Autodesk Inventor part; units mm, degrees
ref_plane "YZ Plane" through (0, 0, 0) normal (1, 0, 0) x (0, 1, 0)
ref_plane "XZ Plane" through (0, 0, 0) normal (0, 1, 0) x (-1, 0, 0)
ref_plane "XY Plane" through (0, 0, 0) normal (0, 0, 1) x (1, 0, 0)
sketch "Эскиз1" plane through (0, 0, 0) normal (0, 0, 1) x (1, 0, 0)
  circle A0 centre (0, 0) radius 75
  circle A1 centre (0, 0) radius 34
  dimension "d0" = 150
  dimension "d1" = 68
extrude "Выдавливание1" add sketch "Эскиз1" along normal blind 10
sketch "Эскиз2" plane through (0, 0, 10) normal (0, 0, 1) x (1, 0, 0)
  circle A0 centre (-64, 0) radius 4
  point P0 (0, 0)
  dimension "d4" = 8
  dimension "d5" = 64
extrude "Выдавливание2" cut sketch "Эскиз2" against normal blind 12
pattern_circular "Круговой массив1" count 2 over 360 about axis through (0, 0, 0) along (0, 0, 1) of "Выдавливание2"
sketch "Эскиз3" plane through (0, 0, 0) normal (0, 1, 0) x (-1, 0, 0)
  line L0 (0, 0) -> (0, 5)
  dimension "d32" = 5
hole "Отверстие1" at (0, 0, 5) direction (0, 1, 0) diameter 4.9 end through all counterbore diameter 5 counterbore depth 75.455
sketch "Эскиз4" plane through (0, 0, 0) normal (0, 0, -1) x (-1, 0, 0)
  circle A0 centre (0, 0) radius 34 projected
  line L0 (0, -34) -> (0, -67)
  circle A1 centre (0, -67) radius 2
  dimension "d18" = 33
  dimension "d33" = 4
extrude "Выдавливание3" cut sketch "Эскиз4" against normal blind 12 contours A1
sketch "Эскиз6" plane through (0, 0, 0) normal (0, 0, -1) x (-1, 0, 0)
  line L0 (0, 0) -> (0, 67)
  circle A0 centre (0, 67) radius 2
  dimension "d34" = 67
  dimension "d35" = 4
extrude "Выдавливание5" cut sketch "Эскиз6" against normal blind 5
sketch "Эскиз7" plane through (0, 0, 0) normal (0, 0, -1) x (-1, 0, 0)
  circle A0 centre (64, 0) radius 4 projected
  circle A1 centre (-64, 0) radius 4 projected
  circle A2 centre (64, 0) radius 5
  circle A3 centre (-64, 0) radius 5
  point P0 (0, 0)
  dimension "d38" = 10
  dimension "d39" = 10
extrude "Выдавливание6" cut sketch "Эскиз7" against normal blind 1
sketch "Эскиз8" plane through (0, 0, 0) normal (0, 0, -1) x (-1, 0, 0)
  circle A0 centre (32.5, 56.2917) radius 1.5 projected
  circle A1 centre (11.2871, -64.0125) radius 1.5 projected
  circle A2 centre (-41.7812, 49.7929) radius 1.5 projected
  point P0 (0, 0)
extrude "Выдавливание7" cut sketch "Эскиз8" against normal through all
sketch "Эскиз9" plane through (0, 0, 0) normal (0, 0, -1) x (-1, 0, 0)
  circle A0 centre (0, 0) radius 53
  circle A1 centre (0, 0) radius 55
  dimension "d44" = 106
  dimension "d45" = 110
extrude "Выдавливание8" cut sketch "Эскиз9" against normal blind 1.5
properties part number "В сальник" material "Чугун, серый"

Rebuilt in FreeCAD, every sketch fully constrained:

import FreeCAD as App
import Part
import Sketcher
Q = App.Units.Quantity

doc = App.newDocument("Part")
body = doc.addObject("PartDesign::Body", "Body")

sketch1 = doc.addObject("Sketcher::SketchObject", "Sketch")
body.addObject(sketch1)
sketch1.AttachmentSupport = (doc.XY_Plane, [""])
sketch1.MapMode = "FlatFace"
sketch1.addGeometry(Part.Circle(App.Vector(0, 0, 0), App.Vector(0, 0, 1), 75), False)
sketch1.addGeometry(Part.Circle(App.Vector(0, 0, 0), App.Vector(0, 0, 1), 34), False)
sketch1.addConstraint(Sketcher.Constraint("Coincident", 0, 3, -1, 1))
sketch1.addConstraint(Sketcher.Constraint("Coincident", 1, 3, -1, 1))
sketch1.addConstraint(Sketcher.Constraint("Diameter", 0, Q("150 mm")))
sketch1.addConstraint(Sketcher.Constraint("Diameter", 1, Q("68 mm")))
pad1 = doc.addObject("PartDesign::Pad", "Pad")
body.addObject(pad1)
pad1.Profile = sketch1
pad1.Length = 10

sketch2 = doc.addObject("Sketcher::SketchObject", "Sketch001")
body.addObject(sketch2)
sketch2.AttachmentSupport = (doc.XY_Plane, [""])
sketch2.MapMode = "FlatFace"
sketch2.AttachmentOffset = App.Placement(App.Vector(0, 0, 10), App.Rotation())
sketch2.addGeometry(Part.Circle(App.Vector(-64, 0, 0), App.Vector(0, 0, 1), 4), False)
sketch2.addConstraint(Sketcher.Constraint("PointOnObject", 0, 3, -1))
sketch2.addConstraint(Sketcher.Constraint("Diameter", 0, Q("8 mm")))
sketch2.addConstraint(Sketcher.Constraint("DistanceX", 0, 3, -1, 1, Q("64 mm")))
pocket1 = doc.addObject("PartDesign::Pocket", "Pocket")
body.addObject(pocket1)
pocket1.Profile = sketch2
pocket1.Length = 12
doc.recompute()

polarpattern = doc.addObject("PartDesign::PolarPattern", "PolarPattern")
body.addObject(polarpattern)
polarpattern.Originals = [pocket1]
polarpattern.Axis = (doc.Z_Axis, [""])
polarpattern.Angle = 360
polarpattern.Occurrences = 2
body.Tip = polarpattern

sketch3 = doc.addObject("Sketcher::SketchObject", "Sketch002")
body.addObject(sketch3)
sketch3.AttachmentSupport = (doc.XZ_Plane, [""])
sketch3.MapMode = "FlatFace"
sketch3.addGeometry(Part.Circle(App.Vector(0, 5, 0), App.Vector(0, 0, 1), 2.5), False)
sketch3.addConstraint(Sketcher.Constraint("PointOnObject", 0, 3, -2))
sketch3.addConstraint(Sketcher.Constraint("Diameter", 0, Q("4.9 mm")))
sketch3.addConstraint(Sketcher.Constraint("DistanceY", -1, 1, 0, 3, Q("5 mm")))
doc.recompute()
hole = doc.addObject("PartDesign::Hole", "Hole")
body.addObject(hole)
hole.Profile = sketch3
hole.ThreadType = "None"
hole.Diameter = 4.9
hole.DepthType = "ThroughAll"
hole.HoleCutType = "Counterbore"
hole.HoleCutDiameter = 5
hole.HoleCutDepth = 75.455

sketch4 = doc.addObject("Sketcher::SketchObject", "Sketch003")
body.addObject(sketch4)
sketch4.AttachmentSupport = (doc.XY_Plane, [""])
sketch4.MapMode = "FlatFace"
sketch4.addGeometry(Part.Circle(App.Vector(0, -67, 0), App.Vector(0, 0, 1), 2), False)
sketch4.addConstraint(Sketcher.Constraint("PointOnObject", 0, 3, -2))
sketch4.addConstraint(Sketcher.Constraint("Diameter", 0, Q("4 mm")))
sketch4.addConstraint(Sketcher.Constraint("DistanceY", 0, 3, -1, 1, Q("67 mm")))
pocket2 = doc.addObject("PartDesign::Pocket", "Pocket001")
body.addObject(pocket2)
pocket2.Profile = sketch4
pocket2.Length = 12
pocket2.Reversed = True

sketch5 = doc.addObject("Sketcher::SketchObject", "Sketch004")
body.addObject(sketch5)
sketch5.AttachmentSupport = (doc.XY_Plane, [""])
sketch5.MapMode = "FlatFace"
sketch5.addGeometry(Part.Circle(App.Vector(0, 67, 0), App.Vector(0, 0, 1), 2), False)
sketch5.addConstraint(Sketcher.Constraint("PointOnObject", 0, 3, -2))
sketch5.addConstraint(Sketcher.Constraint("Diameter", 0, Q("4 mm")))
sketch5.addConstraint(Sketcher.Constraint("DistanceY", -1, 1, 0, 3, Q("67 mm")))
pocket3 = doc.addObject("PartDesign::Pocket", "Pocket002")
body.addObject(pocket3)
pocket3.Profile = sketch5
pocket3.Length = 5
pocket3.Reversed = True

sketch6 = doc.addObject("Sketcher::SketchObject", "Sketch005")
body.addObject(sketch6)
sketch6.AttachmentSupport = (doc.XY_Plane, [""])
sketch6.MapMode = "FlatFace"
sketch6.addGeometry(Part.Circle(App.Vector(-64, 0, 0), App.Vector(0, 0, 1), 5), False)
sketch6.addGeometry(Part.Circle(App.Vector(-64, 0, 0), App.Vector(0, 0, 1), 4), False)
sketch6.addGeometry(Part.Circle(App.Vector(64, 0, 0), App.Vector(0, 0, 1), 5), False)
sketch6.addGeometry(Part.Circle(App.Vector(64, 0, 0), App.Vector(0, 0, 1), 4), False)
sketch6.addConstraint(Sketcher.Constraint("Coincident", 1, 3, 0, 3))
sketch6.addConstraint(Sketcher.Constraint("Coincident", 3, 3, 2, 3))
sketch6.addConstraint(Sketcher.Constraint("Equal", 0, 2))
sketch6.addConstraint(Sketcher.Constraint("Equal", 1, 3))
sketch6.addConstraint(Sketcher.Constraint("Symmetric", 0, 3, 2, 3, -1, 1))
sketch6.addConstraint(Sketcher.Constraint("PointOnObject", 0, 3, -1))
sketch6.addConstraint(Sketcher.Constraint("Diameter", 0, Q("10 mm")))
sketch6.addConstraint(Sketcher.Constraint("Diameter", 1, Q("8 mm")))
sketch6.addConstraint(Sketcher.Constraint("DistanceX", 0, 3, -1, 1, Q("64 mm")))
pocket4 = doc.addObject("PartDesign::Pocket", "Pocket003")
body.addObject(pocket4)
pocket4.Profile = sketch6
pocket4.Length = 1
pocket4.Reversed = True

sketch7 = doc.addObject("Sketcher::SketchObject", "Sketch006")
body.addObject(sketch7)
sketch7.AttachmentSupport = (doc.XY_Plane, [""])
sketch7.MapMode = "FlatFace"
sketch7.addGeometry(Part.Circle(App.Vector(-32.5, 56.3, 0), App.Vector(0, 0, 1), 1.5), False)
sketch7.addGeometry(Part.Circle(App.Vector(-11.3, -64, 0), App.Vector(0, 0, 1), 1.5), False)
sketch7.addGeometry(Part.Circle(App.Vector(41.8, 49.8, 0), App.Vector(0, 0, 1), 1.5), False)
sketch7.addConstraint(Sketcher.Constraint("Equal", 0, 1))
sketch7.addConstraint(Sketcher.Constraint("Equal", 1, 2))
sketch7.addConstraint(Sketcher.Constraint("Diameter", 0, Q("3 mm")))
sketch7.addConstraint(Sketcher.Constraint("DistanceX", 0, 3, -1, 1, Q("32.5 mm")))
sketch7.addConstraint(Sketcher.Constraint("DistanceX", 1, 3, -1, 1, Q("11.287 mm")))
sketch7.addConstraint(Sketcher.Constraint("DistanceY", -1, 1, 2, 3, Q("49.793 mm")))
sketch7.addConstraint(Sketcher.Constraint("DistanceY", -1, 1, 0, 3, Q("56.2917 mm")))
sketch7.addConstraint(Sketcher.Constraint("DistanceY", 1, 3, -1, 1, Q("64.0125 mm")))
sketch7.addConstraint(Sketcher.Constraint("DistanceX", -1, 1, 2, 3, Q("41.7812 mm")))
pocket5 = doc.addObject("PartDesign::Pocket", "Pocket004")
body.addObject(pocket5)
pocket5.Profile = sketch7
pocket5.Type = "ThroughAll"
pocket5.Reversed = True

sketch8 = doc.addObject("Sketcher::SketchObject", "Sketch007")
body.addObject(sketch8)
sketch8.AttachmentSupport = (doc.XY_Plane, [""])
sketch8.MapMode = "FlatFace"
sketch8.addGeometry(Part.Circle(App.Vector(0, 0, 0), App.Vector(0, 0, 1), 55), False)
sketch8.addGeometry(Part.Circle(App.Vector(0, 0, 0), App.Vector(0, 0, 1), 53), False)
sketch8.addConstraint(Sketcher.Constraint("Coincident", 0, 3, -1, 1))
sketch8.addConstraint(Sketcher.Constraint("Coincident", 1, 3, -1, 1))
sketch8.addConstraint(Sketcher.Constraint("Diameter", 0, Q("110 mm")))
sketch8.addConstraint(Sketcher.Constraint("Diameter", 1, Q("106 mm")))
pocket6 = doc.addObject("PartDesign::Pocket", "Pocket005")
body.addObject(pocket6)
pocket6.Profile = sketch8
pocket6.Length = 1.5
pocket6.Reversed = True

doc.recompute()
